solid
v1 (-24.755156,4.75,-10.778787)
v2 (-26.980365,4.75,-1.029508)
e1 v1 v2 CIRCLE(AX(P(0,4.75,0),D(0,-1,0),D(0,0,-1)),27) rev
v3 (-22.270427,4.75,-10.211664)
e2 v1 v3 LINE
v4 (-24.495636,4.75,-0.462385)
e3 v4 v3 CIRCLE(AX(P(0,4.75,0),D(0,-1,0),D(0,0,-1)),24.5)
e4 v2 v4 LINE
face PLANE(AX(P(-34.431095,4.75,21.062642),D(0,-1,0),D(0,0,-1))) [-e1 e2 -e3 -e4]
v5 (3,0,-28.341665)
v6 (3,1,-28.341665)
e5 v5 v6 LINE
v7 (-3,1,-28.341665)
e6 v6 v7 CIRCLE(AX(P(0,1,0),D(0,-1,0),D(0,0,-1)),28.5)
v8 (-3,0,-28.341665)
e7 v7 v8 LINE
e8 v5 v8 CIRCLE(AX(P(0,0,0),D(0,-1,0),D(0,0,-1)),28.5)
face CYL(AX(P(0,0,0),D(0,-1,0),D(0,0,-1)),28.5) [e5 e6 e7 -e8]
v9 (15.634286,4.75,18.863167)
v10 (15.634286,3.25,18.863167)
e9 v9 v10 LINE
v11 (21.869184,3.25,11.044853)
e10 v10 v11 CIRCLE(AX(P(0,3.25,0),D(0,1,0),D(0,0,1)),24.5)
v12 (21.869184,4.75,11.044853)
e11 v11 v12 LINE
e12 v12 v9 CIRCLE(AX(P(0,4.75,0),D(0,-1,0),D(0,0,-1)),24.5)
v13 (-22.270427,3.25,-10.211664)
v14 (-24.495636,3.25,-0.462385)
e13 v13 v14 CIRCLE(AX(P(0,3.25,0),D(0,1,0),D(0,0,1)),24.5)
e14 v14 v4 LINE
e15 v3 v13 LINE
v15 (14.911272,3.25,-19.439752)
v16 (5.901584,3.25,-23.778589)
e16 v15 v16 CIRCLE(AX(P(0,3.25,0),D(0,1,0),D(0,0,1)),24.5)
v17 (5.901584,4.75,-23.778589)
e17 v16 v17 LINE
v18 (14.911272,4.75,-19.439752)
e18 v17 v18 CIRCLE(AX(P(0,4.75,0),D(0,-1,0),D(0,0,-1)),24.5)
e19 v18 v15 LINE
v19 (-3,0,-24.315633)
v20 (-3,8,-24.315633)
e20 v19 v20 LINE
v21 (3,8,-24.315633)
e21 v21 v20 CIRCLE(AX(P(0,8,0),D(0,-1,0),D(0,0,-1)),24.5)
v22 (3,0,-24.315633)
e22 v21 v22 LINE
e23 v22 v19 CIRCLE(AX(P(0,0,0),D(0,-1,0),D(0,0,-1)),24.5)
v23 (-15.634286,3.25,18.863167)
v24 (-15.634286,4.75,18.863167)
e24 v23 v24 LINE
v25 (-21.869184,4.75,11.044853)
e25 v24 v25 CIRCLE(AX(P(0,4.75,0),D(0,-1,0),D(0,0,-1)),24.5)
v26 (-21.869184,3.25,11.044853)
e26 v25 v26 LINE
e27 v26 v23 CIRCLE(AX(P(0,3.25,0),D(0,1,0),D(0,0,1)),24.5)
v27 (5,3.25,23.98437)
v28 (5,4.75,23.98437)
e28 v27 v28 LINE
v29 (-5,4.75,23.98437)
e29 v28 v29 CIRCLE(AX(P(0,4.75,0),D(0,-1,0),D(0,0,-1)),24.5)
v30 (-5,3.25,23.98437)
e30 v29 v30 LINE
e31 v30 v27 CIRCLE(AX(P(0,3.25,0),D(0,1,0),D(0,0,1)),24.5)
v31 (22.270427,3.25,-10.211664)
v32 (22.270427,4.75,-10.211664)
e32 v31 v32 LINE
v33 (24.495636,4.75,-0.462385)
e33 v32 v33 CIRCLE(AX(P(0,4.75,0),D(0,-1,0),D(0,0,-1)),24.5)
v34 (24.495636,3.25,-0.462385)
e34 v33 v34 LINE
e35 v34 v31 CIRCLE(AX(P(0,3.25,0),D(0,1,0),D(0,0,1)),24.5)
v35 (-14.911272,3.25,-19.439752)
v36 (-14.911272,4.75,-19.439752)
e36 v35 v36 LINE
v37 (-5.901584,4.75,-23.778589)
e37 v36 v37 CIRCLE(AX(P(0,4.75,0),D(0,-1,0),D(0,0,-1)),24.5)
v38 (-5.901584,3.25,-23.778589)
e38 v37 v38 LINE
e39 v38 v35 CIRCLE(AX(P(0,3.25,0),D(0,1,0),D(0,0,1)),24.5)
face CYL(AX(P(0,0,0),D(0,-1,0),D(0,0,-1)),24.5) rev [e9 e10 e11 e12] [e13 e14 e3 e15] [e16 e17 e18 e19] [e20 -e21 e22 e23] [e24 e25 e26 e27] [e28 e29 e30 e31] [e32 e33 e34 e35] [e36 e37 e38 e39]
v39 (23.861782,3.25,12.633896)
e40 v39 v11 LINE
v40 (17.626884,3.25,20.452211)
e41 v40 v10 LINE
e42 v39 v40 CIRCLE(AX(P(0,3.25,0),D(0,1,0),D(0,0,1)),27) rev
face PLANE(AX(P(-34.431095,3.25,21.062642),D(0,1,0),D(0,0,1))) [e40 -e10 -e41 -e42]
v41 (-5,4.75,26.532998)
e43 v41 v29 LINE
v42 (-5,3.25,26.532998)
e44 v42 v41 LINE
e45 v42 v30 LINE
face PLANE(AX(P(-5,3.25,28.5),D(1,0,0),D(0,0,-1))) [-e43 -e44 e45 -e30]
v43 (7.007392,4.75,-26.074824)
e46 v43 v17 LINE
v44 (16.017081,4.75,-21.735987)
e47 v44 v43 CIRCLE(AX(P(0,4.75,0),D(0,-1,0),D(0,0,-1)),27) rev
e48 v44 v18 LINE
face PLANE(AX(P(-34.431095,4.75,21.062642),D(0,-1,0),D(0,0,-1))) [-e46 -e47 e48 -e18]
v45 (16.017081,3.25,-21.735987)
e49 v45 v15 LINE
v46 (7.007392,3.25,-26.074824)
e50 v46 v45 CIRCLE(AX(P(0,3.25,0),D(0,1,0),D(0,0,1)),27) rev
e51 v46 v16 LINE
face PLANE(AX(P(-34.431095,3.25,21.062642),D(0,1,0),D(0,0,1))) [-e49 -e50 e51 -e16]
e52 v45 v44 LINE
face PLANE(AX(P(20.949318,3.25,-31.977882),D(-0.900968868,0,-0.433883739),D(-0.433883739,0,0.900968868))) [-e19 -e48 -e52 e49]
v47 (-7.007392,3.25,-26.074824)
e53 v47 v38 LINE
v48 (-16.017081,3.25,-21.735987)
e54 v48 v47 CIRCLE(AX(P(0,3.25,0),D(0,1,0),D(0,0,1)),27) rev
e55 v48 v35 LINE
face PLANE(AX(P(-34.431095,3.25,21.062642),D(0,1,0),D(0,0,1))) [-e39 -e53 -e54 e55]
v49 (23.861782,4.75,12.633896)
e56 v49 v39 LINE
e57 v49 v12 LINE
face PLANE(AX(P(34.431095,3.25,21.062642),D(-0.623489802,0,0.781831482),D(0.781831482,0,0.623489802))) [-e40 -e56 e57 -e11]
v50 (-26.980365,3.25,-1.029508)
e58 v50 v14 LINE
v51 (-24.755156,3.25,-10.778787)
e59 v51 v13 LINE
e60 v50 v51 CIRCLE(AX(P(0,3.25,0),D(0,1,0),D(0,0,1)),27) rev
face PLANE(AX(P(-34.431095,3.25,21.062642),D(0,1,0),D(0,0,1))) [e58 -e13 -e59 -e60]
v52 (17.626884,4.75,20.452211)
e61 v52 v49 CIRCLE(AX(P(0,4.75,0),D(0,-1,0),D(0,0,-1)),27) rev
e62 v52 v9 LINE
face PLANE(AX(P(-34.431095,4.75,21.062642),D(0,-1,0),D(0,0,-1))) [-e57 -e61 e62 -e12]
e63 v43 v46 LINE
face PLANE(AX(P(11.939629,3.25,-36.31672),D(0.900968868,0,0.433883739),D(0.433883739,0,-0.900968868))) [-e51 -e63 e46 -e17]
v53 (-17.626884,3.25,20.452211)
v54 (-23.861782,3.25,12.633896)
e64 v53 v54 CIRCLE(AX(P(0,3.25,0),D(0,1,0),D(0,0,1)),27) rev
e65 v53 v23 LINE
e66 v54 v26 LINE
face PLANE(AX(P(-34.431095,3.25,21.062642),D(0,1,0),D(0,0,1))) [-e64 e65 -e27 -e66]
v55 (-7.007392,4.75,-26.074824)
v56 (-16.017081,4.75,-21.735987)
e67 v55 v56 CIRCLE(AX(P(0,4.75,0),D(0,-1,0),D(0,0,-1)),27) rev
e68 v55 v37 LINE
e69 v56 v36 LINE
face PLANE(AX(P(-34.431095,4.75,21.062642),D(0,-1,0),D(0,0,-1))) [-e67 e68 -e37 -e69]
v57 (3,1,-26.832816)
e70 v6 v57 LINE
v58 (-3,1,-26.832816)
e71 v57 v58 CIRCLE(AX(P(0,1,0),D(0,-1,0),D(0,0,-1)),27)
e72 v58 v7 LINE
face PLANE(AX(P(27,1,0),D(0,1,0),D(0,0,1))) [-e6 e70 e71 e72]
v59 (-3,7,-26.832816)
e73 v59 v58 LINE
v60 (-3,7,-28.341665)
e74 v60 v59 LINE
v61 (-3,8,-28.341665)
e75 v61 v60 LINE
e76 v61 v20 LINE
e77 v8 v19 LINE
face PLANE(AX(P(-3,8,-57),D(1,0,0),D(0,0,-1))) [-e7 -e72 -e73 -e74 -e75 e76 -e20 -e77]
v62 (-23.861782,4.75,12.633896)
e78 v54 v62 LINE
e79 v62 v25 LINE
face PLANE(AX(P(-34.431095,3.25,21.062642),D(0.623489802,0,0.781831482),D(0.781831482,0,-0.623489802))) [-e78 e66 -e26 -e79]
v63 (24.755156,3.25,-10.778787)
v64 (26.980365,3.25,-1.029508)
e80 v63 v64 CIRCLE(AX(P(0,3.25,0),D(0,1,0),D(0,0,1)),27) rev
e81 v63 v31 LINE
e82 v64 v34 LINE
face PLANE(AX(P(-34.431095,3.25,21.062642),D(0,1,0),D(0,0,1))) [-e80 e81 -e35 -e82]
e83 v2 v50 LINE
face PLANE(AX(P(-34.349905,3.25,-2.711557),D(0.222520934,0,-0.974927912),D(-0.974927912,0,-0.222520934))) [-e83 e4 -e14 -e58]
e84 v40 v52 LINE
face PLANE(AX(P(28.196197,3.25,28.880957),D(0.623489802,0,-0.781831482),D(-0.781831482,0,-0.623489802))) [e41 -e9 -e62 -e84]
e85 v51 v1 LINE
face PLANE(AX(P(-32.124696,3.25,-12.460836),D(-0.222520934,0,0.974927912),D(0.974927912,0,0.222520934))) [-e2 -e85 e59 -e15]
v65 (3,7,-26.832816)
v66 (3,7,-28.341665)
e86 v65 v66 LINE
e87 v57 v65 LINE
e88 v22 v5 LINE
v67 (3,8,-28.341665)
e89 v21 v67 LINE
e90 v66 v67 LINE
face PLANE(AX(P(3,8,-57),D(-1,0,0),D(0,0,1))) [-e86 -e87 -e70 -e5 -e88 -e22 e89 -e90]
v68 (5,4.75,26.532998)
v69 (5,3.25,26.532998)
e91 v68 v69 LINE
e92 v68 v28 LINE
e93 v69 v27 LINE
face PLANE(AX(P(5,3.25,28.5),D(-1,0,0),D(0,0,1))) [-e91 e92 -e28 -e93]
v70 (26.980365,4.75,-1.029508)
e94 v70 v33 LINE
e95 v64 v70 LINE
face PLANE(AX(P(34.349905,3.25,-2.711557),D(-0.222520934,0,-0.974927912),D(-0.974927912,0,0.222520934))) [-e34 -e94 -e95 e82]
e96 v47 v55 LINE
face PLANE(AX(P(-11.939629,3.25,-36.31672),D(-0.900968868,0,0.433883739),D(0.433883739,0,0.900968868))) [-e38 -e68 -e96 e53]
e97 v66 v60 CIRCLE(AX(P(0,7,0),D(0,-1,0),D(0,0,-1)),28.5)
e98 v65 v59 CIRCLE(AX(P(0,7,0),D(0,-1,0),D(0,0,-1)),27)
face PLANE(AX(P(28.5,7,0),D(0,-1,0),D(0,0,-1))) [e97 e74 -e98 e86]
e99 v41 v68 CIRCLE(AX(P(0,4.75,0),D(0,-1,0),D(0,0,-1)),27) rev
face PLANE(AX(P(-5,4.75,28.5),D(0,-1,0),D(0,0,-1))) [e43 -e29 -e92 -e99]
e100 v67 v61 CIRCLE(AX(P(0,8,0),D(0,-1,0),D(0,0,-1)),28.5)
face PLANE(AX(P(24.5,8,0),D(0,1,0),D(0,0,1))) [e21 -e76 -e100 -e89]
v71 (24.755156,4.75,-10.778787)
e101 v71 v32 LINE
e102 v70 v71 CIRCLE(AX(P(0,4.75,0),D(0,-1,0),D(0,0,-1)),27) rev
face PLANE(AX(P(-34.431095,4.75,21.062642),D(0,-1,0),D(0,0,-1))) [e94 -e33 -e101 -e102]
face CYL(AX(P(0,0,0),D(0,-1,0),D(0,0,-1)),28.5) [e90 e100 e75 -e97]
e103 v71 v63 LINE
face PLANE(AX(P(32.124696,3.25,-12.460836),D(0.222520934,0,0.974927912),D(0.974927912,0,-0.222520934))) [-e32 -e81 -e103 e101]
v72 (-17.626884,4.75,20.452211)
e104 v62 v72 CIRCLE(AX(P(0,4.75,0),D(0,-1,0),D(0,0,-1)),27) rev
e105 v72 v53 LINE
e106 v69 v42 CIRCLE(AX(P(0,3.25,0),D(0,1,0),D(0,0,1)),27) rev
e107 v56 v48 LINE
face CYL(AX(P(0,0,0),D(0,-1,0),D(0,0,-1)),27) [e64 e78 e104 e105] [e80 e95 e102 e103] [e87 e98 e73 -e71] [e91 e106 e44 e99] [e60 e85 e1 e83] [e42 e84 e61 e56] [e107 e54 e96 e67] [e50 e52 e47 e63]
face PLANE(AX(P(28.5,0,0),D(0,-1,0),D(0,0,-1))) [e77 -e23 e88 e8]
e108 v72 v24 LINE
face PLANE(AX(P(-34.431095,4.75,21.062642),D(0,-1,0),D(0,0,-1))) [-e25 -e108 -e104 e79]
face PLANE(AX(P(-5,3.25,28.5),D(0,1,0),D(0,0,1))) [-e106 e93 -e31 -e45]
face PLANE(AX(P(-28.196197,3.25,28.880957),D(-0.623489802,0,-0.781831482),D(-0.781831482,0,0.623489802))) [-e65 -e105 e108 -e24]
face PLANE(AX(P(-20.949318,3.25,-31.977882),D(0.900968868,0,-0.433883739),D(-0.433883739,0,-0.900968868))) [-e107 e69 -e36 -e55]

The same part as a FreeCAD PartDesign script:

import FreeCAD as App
import Part
import Sketcher
from FreeCAD import Vector

doc = App.newDocument("Part")
body = doc.addObject("PartDesign::Body", "Body")

# Sketch on XY plane
sketch1 = doc.addObject("Sketcher::SketchObject", "Sketch")
body.addObject(sketch1)
sketch1.AttachmentSupport = (doc.XY_Plane, [""])
sketch1.MapMode = "FlatFace"
sketch1.addGeometry([
    Part.LineSegment(Vector(24.5, 8, 0), Vector(24.5, 0, 0)),  # 0
    Part.LineSegment(Vector(24.5, 0, 0), Vector(28.5, 0, 0)),  # 1
    Part.LineSegment(Vector(28.5, 0, 0), Vector(28.5, 1, 0)),  # 2
    Part.LineSegment(Vector(28.5, 1, 0), Vector(27, 1, 0)),  # 3
    Part.LineSegment(Vector(27, 1, 0), Vector(27, 7, 0)),  # 4
    Part.LineSegment(Vector(27, 7, 0), Vector(28.5, 7, 0)),  # 5
    Part.LineSegment(Vector(28.5, 7, 0), Vector(28.5, 8, 0)),  # 6
    Part.LineSegment(Vector(28.5, 8, 0), Vector(24.5, 8, 0)),  # 7
], False)
sketch1.addConstraint([
    Sketcher.Constraint("Coincident", 0, 2, 1, 1),
    Sketcher.Constraint("Coincident", 1, 2, 2, 1),
    Sketcher.Constraint("Coincident", 2, 2, 3, 1),
    Sketcher.Constraint("Coincident", 3, 2, 4, 1),
    Sketcher.Constraint("Coincident", 4, 2, 5, 1),
    Sketcher.Constraint("Coincident", 5, 2, 6, 1),
    Sketcher.Constraint("Coincident", 6, 2, 7, 1),
    Sketcher.Constraint("Coincident", 7, 2, 0, 1),
    Sketcher.Constraint("Vertical", 0),
    Sketcher.Constraint("Horizontal", 1),
    Sketcher.Constraint("Vertical", 2),
    Sketcher.Constraint("Horizontal", 3),
    Sketcher.Constraint("Vertical", 4),
    Sketcher.Constraint("Horizontal", 5),
    Sketcher.Constraint("Vertical", 6),
    Sketcher.Constraint("Horizontal", 7),
    Sketcher.Constraint("PointOnObject", 0, 2, -1),
    Sketcher.Constraint("Vertical", 2, 2, 5, 2),
    Sketcher.Constraint("Equal", 2, 6),
    Sketcher.Constraint("DistanceX", 1, 1, 1, 2, 4.0),
    Sketcher.Constraint("DistanceY", 0, 2, 0, 1, 8.0),
    Sketcher.Constraint("DistanceY", 2, 1, 2, 2, 1.0),
    Sketcher.Constraint("DistanceX", 3, 2, 3, 1, 1.5),
    Sketcher.Constraint("DistanceX", -1, 1, 3, 2, 27.0),
])
revolution = doc.addObject("PartDesign::Revolution", "Revolution")
body.addObject(revolution)
revolution.Profile = sketch1
revolution.ReferenceAxis = (sketch1, ["V_Axis"])
revolution.Angle = 360

# Sketch on XZ plane
sketch2 = doc.addObject("Sketcher::SketchObject", "Sketch001")
body.addObject(sketch2)
sketch2.AttachmentSupport = (doc.XZ_Plane, [""])
sketch2.MapMode = "FlatFace"
sketch2.addGeometry([
    Part.LineSegment(Vector(-3, -57, 0), Vector(-3, 0, 0)),
    Part.LineSegment(Vector(-3, 0, 0), Vector(3, 0, 0)),
    Part.LineSegment(Vector(3, 0, 0), Vector(3, -57, 0)),
    Part.LineSegment(Vector(3, -57, 0), Vector(-3, -57, 0)),
], False)
sketch2.addConstraint([
    Sketcher.Constraint("Coincident", 0, 2, 1, 1),
    Sketcher.Constraint("Coincident", 1, 2, 2, 1),
    Sketcher.Constraint("Coincident", 2, 2, 3, 1),
    Sketcher.Constraint("Coincident", 3, 2, 0, 1),
    Sketcher.Constraint("Vertical", 0),
    Sketcher.Constraint("Horizontal", 1),
    Sketcher.Constraint("Vertical", 2),
    Sketcher.Constraint("Horizontal", 3),
    Sketcher.Constraint("Symmetric", 0, 2, 1, 2, -1, 1),
    Sketcher.Constraint("DistanceX", 1, 1, 1, 2, 6.0),
    Sketcher.Constraint("DistanceY", 0, 1, 0, 2, 57.0),
])
pocket1 = doc.addObject("PartDesign::Pocket", "Pocket")
body.addObject(pocket1)
pocket1.Profile = sketch2
pocket1.Type = "ThroughAll"

# Sketch on XY plane
sketch3 = doc.addObject("Sketcher::SketchObject", "Sketch002")
body.addObject(sketch3)
sketch3.AttachmentSupport = (doc.XY_Plane, [""])
sketch3.MapMode = "FlatFace"
sketch3.addGeometry([
    Part.LineSegment(Vector(-5, 4.8, 0), Vector(-5, 3.2, 0)),
    Part.LineSegment(Vector(-5, 3.2, 0), Vector(5, 3.2, 0)),
    Part.LineSegment(Vector(5, 3.2, 0), Vector(5, 4.8, 0)),
    Part.LineSegment(Vector(5, 4.8, 0), Vector(-5, 4.8, 0)),
], False)
sketch3.addConstraint([
    Sketcher.Constraint("Coincident", 0, 2, 1, 1),
    Sketcher.Constraint("Coincident", 1, 2, 2, 1),
    Sketcher.Constraint("Coincident", 2, 2, 3, 1),
    Sketcher.Constraint("Coincident", 3, 2, 0, 1),
    Sketcher.Constraint("Vertical", 0),
    Sketcher.Constraint("Horizontal", 1),
    Sketcher.Constraint("Vertical", 2),
    Sketcher.Constraint("Horizontal", 3),
    Sketcher.Constraint("DistanceX", 1, 1, 1, 2, 10.0),
    Sketcher.Constraint("DistanceY", 0, 2, 0, 1, 1.5),
    Sketcher.Constraint("DistanceX", 0, 2, -1, 1, 5.0),
    Sketcher.Constraint("DistanceY", -1, 1, 0, 2, 3.25),
])
pocket2 = doc.addObject("PartDesign::Pocket", "Pocket001")
body.addObject(pocket2)
pocket2.Profile = sketch3
pocket2.Type = "ThroughAll"
pocket2.Reversed = True
doc.recompute()

polarpattern = doc.addObject("PartDesign::PolarPattern", "PolarPattern")
body.addObject(polarpattern)
polarpattern.Originals = [pocket2]
polarpattern.Axis = (doc.Y_Axis, [""])
polarpattern.Angle = 360
polarpattern.Occurrences = 7
body.Tip = polarpattern

doc.recompute()
